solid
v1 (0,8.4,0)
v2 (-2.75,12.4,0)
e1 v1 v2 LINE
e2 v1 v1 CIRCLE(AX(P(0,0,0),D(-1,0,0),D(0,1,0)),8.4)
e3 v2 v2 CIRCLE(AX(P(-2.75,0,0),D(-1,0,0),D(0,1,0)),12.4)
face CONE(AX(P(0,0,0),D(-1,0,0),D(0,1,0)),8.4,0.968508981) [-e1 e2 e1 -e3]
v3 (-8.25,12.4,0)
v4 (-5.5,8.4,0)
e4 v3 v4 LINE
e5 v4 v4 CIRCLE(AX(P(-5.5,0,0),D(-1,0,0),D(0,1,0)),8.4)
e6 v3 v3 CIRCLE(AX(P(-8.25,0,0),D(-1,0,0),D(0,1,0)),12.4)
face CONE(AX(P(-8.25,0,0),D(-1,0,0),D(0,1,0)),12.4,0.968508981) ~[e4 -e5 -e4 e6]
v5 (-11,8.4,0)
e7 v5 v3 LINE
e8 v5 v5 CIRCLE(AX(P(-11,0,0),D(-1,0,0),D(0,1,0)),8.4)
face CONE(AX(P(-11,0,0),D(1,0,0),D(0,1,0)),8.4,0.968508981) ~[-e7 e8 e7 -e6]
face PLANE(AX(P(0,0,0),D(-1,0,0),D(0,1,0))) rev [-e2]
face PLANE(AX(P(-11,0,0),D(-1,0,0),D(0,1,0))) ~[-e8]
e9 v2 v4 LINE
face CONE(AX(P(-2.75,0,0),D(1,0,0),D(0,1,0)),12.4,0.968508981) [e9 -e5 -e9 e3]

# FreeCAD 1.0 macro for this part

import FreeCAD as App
import Part
import Sketcher
from FreeCAD import Vector
Q = App.Units.Quantity

doc = App.newDocument("Part")
params = doc.addObject("Spreadsheet::Sheet", "Params")
for row, (alias, value) in enumerate([
    ("sketch1_width", "11 mm"),
    ("sketch1_height", "8.4 mm"),
    ("revolution_angle", "360 deg"),
], start=1):
    params.set(f"A{row}", alias)
    params.set(f"B{row}", "=" + value)
    params.setAlias(f"B{row}", alias)

body = doc.addObject("PartDesign::Body", "Body")

# Sketch on XY plane
sketch1 = doc.addObject("Sketcher::SketchObject", "Sketch")
body.addObject(sketch1)
sketch1.AttachmentSupport = (doc.XY_Plane, [""])
sketch1.MapMode = "FlatFace"
sketch1.addGeometry(Part.LineSegment(Vector(0, 0, 0), Vector(0, 8.4, 0)), False)
sketch1.addGeometry(Part.LineSegment(Vector(0, 8.4, 0), Vector(-2.8, 12.4, 0)), False)
sketch1.addGeometry(Part.LineSegment(Vector(-2.8, 12.4, 0), Vector(-5.5, 8.4, 0)), False)
sketch1.addGeometry(Part.LineSegment(Vector(-5.5, 8.4, 0), Vector(-8.2, 12.4, 0)), False)
sketch1.addGeometry(Part.LineSegment(Vector(-8.2, 12.4, 0), Vector(-11, 8.4, 0)), False)
sketch1.addGeometry(Part.LineSegment(Vector(-11, 8.4, 0), Vector(-11, 0, 0)), False)
sketch1.addGeometry(Part.LineSegment(Vector(-11, 0, 0), Vector(0, 0, 0)), False)
sketch1.addConstraint(Sketcher.Constraint("Coincident", 0, 2, 1, 1))
sketch1.addConstraint(Sketcher.Constraint("Coincident", 1, 2, 2, 1))
sketch1.addConstraint(Sketcher.Constraint("Coincident", 2, 2, 3, 1))
sketch1.addConstraint(Sketcher.Constraint("Coincident", 3, 2, 4, 1))
sketch1.addConstraint(Sketcher.Constraint("Coincident", 4, 2, 5, 1))
sketch1.addConstraint(Sketcher.Constraint("Coincident", 5, 2, 6, 1))
sketch1.addConstraint(Sketcher.Constraint("Coincident", 6, 2, 0, 1))
sketch1.addConstraint(Sketcher.Constraint("Vertical", 0))
sketch1.addConstraint(Sketcher.Constraint("Vertical", 5))
sketch1.addConstraint(Sketcher.Constraint("Horizontal", 6))
sketch1.addConstraint(Sketcher.Constraint("Coincident", 6, 2, -1, 1))
sketch1.addConstraint(Sketcher.Constraint("Parallel", 1, 3))
sketch1.addConstraint(Sketcher.Constraint("Parallel", 2, 4))
sketch1.addConstraint(Sketcher.Constraint("Horizontal", 0, 2, 2, 2))
sketch1.addConstraint(Sketcher.Constraint("Horizontal", 1, 2, 3, 2))
sketch1.addConstraint(Sketcher.Constraint("Horizontal", 2, 2, 4, 2))
sketch1.addConstraint(Sketcher.Constraint("Equal", 1, 2))
sketch1.addConstraint(Sketcher.Constraint("DistanceX", 6, 1, 6, 2, Q("11 mm")))
sketch1.addConstraint(Sketcher.Constraint("DistanceY", 0, 1, 0, 2, Q("8.4 mm")))
sketch1.addConstraint(Sketcher.Constraint("DistanceY", -1, 1, 1, 2, Q("12.4 mm")))
sketch1.setExpression("Constraints[17]", "Params.sketch1_width")
sketch1.setExpression("Constraints[18]", "Params.sketch1_height")
revolution = doc.addObject("PartDesign::Revolution", "Revolution")
body.addObject(revolution)
revolution.Profile = sketch1
revolution.ReferenceAxis = (sketch1, ["H_Axis"])
revolution.setExpression("Angle", "Params.revolution_angle")

doc.recompute()
